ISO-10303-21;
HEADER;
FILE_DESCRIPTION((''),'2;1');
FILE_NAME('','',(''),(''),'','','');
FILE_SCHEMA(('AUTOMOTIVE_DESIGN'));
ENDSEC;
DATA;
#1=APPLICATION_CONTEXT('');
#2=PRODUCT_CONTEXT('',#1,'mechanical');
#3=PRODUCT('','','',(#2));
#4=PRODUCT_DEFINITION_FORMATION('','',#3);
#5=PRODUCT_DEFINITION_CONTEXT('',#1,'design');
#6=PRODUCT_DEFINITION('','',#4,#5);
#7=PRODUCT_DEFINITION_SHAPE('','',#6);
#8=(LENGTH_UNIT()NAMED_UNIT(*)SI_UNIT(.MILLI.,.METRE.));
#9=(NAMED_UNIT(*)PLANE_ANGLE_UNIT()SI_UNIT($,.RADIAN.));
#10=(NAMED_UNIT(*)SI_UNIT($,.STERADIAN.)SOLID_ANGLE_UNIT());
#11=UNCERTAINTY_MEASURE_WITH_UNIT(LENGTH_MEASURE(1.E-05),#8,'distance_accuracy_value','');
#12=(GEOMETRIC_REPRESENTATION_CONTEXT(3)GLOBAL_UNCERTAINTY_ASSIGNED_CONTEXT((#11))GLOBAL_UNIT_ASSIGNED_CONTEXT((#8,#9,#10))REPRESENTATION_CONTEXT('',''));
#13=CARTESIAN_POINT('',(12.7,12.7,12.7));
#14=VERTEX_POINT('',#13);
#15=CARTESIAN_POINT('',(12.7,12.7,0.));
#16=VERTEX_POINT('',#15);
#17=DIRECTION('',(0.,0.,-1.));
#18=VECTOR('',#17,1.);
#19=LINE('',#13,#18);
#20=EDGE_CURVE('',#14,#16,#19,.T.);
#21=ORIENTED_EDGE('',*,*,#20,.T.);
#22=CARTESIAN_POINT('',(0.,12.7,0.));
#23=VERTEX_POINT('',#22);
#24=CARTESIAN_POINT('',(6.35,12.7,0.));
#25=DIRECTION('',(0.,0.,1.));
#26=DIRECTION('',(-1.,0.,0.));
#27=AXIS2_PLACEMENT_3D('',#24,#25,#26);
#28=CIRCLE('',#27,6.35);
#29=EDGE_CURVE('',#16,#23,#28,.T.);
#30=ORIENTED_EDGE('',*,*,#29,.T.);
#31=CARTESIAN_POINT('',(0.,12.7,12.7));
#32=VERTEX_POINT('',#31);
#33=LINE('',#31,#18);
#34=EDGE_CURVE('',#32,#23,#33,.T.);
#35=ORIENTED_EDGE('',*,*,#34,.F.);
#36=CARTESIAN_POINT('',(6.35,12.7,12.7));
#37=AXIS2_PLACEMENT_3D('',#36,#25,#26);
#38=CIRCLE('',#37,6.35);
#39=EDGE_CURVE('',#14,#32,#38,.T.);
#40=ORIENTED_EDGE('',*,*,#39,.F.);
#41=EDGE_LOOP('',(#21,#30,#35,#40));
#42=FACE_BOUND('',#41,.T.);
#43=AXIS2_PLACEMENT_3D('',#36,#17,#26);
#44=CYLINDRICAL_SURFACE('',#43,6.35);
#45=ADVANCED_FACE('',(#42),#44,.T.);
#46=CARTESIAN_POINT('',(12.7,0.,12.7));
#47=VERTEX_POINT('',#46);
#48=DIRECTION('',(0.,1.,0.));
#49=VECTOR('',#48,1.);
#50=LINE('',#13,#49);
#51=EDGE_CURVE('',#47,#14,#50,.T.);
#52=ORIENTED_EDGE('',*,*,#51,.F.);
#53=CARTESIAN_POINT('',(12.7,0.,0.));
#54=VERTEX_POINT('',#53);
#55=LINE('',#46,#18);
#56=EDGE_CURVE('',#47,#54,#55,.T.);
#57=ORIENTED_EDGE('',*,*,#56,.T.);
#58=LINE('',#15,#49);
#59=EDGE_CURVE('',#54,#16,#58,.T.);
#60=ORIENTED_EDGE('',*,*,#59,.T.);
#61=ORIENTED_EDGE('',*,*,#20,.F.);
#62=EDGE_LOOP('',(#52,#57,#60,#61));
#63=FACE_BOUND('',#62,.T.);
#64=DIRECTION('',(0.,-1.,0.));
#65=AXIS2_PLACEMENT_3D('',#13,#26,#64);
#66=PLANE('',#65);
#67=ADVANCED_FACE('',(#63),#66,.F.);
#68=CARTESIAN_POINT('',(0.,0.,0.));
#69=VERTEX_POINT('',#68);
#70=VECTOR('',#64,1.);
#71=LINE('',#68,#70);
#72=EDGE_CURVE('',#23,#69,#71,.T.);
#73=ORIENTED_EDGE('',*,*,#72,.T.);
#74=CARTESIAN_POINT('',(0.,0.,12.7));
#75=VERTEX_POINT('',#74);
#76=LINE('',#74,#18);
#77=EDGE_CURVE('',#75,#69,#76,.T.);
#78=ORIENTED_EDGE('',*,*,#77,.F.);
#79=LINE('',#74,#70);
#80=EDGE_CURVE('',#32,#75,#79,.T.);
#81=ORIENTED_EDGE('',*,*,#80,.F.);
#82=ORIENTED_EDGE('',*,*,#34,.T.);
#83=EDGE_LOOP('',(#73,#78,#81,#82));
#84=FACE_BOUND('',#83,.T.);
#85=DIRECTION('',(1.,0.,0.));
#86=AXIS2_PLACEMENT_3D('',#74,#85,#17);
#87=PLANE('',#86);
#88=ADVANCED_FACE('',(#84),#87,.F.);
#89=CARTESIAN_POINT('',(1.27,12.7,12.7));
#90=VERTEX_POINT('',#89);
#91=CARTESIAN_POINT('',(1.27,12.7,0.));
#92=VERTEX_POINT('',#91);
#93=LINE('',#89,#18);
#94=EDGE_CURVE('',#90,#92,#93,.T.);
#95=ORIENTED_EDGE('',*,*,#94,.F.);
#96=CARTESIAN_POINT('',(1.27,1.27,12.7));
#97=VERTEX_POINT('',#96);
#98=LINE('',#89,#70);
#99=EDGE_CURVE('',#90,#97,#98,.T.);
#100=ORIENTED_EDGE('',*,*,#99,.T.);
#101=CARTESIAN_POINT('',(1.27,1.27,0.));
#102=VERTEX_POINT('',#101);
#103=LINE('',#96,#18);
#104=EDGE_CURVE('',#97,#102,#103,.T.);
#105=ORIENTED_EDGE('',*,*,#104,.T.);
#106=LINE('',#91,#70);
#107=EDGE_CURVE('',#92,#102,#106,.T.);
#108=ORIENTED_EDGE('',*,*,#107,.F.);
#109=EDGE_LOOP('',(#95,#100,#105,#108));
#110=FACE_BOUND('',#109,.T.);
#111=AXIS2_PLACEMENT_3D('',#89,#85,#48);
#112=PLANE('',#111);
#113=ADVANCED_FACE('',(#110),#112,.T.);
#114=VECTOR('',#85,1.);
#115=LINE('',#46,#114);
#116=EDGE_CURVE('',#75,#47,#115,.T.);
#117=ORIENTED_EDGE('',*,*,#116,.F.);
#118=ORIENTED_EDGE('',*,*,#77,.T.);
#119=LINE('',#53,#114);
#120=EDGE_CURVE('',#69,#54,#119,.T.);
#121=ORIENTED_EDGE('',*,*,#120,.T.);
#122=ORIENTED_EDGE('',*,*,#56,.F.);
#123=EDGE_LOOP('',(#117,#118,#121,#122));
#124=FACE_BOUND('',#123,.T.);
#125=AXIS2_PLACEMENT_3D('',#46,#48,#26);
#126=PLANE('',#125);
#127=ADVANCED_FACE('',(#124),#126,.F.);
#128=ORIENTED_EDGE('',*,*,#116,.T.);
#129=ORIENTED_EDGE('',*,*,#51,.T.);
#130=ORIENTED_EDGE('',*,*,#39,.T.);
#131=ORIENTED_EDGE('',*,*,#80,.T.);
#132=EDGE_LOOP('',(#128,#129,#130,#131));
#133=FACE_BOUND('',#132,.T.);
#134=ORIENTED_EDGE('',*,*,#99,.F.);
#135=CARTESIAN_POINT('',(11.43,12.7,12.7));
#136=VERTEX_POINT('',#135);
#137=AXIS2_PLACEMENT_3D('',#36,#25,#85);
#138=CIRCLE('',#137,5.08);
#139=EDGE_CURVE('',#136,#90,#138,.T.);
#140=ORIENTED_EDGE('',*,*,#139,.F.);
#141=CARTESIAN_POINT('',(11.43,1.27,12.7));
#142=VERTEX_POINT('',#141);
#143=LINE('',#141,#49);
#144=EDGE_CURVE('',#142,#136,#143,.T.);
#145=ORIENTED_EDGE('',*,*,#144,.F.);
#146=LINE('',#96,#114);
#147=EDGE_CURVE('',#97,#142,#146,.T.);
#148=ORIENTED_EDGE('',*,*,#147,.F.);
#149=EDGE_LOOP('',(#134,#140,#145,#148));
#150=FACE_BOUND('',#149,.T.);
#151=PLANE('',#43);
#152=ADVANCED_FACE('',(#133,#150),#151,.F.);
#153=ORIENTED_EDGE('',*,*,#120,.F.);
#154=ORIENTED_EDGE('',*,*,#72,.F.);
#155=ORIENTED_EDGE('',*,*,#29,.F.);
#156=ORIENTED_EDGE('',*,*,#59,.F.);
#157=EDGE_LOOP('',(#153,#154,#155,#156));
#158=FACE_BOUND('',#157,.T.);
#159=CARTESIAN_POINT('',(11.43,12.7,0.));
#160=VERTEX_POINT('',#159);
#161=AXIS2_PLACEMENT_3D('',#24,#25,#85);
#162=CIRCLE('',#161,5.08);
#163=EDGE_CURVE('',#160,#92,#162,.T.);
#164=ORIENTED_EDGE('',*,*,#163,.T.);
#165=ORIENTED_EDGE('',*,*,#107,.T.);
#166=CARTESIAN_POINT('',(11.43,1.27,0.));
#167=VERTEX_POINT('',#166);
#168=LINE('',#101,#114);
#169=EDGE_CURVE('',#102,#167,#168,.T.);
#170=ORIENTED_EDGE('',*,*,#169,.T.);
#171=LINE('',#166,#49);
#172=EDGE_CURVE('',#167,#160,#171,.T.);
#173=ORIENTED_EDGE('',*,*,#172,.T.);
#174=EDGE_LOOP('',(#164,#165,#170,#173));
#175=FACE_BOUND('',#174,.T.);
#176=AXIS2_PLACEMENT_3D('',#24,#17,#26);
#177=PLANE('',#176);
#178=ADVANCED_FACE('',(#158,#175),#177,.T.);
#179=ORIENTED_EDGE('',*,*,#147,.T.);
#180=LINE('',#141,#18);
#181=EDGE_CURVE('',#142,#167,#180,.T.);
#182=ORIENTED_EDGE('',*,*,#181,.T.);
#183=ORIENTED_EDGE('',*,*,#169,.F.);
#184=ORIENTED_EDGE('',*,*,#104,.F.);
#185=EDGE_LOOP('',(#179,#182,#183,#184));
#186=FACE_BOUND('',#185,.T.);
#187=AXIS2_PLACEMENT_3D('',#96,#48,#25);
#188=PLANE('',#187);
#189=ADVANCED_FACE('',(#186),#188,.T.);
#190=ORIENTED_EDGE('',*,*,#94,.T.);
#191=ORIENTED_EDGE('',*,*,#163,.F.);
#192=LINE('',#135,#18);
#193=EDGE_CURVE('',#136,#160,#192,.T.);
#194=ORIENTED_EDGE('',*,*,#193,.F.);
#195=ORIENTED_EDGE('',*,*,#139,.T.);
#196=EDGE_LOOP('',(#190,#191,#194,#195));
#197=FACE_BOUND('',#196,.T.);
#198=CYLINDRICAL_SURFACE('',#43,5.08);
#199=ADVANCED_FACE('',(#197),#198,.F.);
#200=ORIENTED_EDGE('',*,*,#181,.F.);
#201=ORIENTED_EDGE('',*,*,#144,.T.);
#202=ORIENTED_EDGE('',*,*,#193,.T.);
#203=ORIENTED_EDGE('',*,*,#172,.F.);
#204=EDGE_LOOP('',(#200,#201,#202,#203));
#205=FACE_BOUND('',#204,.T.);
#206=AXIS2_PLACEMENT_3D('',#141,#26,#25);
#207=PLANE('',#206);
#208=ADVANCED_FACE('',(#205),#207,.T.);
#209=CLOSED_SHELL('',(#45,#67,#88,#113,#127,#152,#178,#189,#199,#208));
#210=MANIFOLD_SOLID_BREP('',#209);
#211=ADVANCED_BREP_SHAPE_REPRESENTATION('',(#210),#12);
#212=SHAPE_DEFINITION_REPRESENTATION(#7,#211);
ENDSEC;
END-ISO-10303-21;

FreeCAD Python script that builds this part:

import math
import FreeCAD as App
import Part
import Sketcher

V = App.Vector
Q = App.Units.Quantity

doc = App.newDocument("Part")
body = doc.addObject("PartDesign::Body", "Body")

# Sketch on XY plane
sketch1 = body.newObject("Sketcher::SketchObject", "Sketch")
sketch1.AttachmentSupport = (doc.getObject("XY_Plane"), [""])
sketch1.MapMode = "FlatFace"
sketch1.addGeometry([
    Part.LineSegment(V(0, 12.7, 0), V(0, 0, 0)),  # 0
    Part.LineSegment(V(0, 0, 0), V(12.7, 0, 0)),  # 1
    Part.LineSegment(V(12.7, 0, 0), V(12.7, 12.7, 0)),  # 2
    Part.ArcOfCircle(Part.Circle(V(6.35, 12.7, 0), V(0, 0, 1), 6.35), math.radians(0), math.radians(180)),  # 3
    Part.LineSegment(V(1.27, 1.27, 0), V(1.27, 12.7, 0)),  # 4
    Part.ArcOfCircle(Part.Circle(V(6.35, 12.7, 0), V(0, 0, 1), 5.08), math.radians(0), math.radians(180)),  # 5
    Part.LineSegment(V(11.43, 12.7, 0), V(11.43, 1.27, 0)),  # 6
    Part.LineSegment(V(11.43, 1.27, 0), V(1.27, 1.27, 0)),  # 7
], False)
sketch1.addConstraint([
    Sketcher.Constraint("Coincident", 0, 2, 1, 1),
    Sketcher.Constraint("Coincident", 1, 2, 2, 1),
    Sketcher.Constraint("Tangent", 2, 2, 3, 1),
    Sketcher.Constraint("Tangent", 3, 2, 0, 1),
    Sketcher.Constraint("Tangent", 4, 2, 5, 2),
    Sketcher.Constraint("Tangent", 5, 1, 6, 1),
    Sketcher.Constraint("Coincident", 6, 2, 7, 1),
    Sketcher.Constraint("Coincident", 7, 2, 4, 1),
    Sketcher.Constraint("Vertical", 0),
    Sketcher.Constraint("Horizontal", 1),
    Sketcher.Constraint("Vertical", 2),
    Sketcher.Constraint("Vertical", 4),
    Sketcher.Constraint("Vertical", 6),
    Sketcher.Constraint("Horizontal", 7),
    Sketcher.Constraint("Coincident", 0, 2, -1, 1),
    Sketcher.Constraint("Coincident", 5, 3, 3, 3),
    Sketcher.Constraint("Equal", 1, 0),
    Sketcher.Constraint("Radius", 5, Q("0.2 in")),
    Sketcher.Constraint("Radius", 3, Q("0.25 in")),
    Sketcher.Constraint("DistanceY", 4, 1, 4, 2, Q("0.45 in")),
])
pad1 = body.newObject("PartDesign::Pad", "Pad")
pad1.Profile = sketch1
pad1.Length = Q("0.5 in")

doc.recompute()
